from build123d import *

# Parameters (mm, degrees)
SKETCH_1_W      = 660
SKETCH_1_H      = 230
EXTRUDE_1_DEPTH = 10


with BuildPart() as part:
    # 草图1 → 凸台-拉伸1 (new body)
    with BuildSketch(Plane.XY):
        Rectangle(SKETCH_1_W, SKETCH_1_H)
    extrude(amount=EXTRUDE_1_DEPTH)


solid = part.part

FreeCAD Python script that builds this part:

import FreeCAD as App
import Part
import Sketcher

V = App.Vector
Q = App.Units.Quantity


def add_polygon(sketch, points):
    """Adds a closed chain of lines whose ends are joined by coincident constraints."""
    first, n = sketch.GeometryCount, len(points)
    for a, b in zip(points, points[1:] + points[:1]):
        sketch.addGeometry(Part.LineSegment(App.Vector(*a, 0), App.Vector(*b, 0)), False)
    for i in range(n):
        sketch.addConstraint(Sketcher.Constraint("Coincident", first + i, 2, first + (i + 1) % n, 1))

doc = App.newDocument("Part")
body = doc.addObject("PartDesign::Body", "Body")

# Sketch on XY plane
sketch1 = doc.addObject("Sketcher::SketchObject", "Sketch")
body.addObject(sketch1)
sketch1.AttachmentSupport = (doc.XY_Plane, [""])
sketch1.MapMode = "FlatFace"
add_polygon(sketch1, [(-330, 115), (-330, -115), (330, -115), (330, 115)])  # lines 0-3
sketch1.addConstraint(Sketcher.Constraint("Vertical", 0))
sketch1.addConstraint(Sketcher.Constraint("Horizontal", 1))
sketch1.addConstraint(Sketcher.Constraint("Vertical", 2))
sketch1.addConstraint(Sketcher.Constraint("Horizontal", 3))
sketch1.addConstraint(Sketcher.Constraint("Symmetric", 0, 2, 2, 2, -1, 1))
sketch1.addConstraint(Sketcher.Constraint("DistanceX", 1, 1, 1, 2, Q("660 mm")))
sketch1.addConstraint(Sketcher.Constraint("DistanceY", 0, 2, 0, 1, Q("230 mm")))
pad1 = doc.addObject("PartDesign::Pad", "Pad")
body.addObject(pad1)
pad1.Profile = sketch1
pad1.Length = 10

doc.recompute()
